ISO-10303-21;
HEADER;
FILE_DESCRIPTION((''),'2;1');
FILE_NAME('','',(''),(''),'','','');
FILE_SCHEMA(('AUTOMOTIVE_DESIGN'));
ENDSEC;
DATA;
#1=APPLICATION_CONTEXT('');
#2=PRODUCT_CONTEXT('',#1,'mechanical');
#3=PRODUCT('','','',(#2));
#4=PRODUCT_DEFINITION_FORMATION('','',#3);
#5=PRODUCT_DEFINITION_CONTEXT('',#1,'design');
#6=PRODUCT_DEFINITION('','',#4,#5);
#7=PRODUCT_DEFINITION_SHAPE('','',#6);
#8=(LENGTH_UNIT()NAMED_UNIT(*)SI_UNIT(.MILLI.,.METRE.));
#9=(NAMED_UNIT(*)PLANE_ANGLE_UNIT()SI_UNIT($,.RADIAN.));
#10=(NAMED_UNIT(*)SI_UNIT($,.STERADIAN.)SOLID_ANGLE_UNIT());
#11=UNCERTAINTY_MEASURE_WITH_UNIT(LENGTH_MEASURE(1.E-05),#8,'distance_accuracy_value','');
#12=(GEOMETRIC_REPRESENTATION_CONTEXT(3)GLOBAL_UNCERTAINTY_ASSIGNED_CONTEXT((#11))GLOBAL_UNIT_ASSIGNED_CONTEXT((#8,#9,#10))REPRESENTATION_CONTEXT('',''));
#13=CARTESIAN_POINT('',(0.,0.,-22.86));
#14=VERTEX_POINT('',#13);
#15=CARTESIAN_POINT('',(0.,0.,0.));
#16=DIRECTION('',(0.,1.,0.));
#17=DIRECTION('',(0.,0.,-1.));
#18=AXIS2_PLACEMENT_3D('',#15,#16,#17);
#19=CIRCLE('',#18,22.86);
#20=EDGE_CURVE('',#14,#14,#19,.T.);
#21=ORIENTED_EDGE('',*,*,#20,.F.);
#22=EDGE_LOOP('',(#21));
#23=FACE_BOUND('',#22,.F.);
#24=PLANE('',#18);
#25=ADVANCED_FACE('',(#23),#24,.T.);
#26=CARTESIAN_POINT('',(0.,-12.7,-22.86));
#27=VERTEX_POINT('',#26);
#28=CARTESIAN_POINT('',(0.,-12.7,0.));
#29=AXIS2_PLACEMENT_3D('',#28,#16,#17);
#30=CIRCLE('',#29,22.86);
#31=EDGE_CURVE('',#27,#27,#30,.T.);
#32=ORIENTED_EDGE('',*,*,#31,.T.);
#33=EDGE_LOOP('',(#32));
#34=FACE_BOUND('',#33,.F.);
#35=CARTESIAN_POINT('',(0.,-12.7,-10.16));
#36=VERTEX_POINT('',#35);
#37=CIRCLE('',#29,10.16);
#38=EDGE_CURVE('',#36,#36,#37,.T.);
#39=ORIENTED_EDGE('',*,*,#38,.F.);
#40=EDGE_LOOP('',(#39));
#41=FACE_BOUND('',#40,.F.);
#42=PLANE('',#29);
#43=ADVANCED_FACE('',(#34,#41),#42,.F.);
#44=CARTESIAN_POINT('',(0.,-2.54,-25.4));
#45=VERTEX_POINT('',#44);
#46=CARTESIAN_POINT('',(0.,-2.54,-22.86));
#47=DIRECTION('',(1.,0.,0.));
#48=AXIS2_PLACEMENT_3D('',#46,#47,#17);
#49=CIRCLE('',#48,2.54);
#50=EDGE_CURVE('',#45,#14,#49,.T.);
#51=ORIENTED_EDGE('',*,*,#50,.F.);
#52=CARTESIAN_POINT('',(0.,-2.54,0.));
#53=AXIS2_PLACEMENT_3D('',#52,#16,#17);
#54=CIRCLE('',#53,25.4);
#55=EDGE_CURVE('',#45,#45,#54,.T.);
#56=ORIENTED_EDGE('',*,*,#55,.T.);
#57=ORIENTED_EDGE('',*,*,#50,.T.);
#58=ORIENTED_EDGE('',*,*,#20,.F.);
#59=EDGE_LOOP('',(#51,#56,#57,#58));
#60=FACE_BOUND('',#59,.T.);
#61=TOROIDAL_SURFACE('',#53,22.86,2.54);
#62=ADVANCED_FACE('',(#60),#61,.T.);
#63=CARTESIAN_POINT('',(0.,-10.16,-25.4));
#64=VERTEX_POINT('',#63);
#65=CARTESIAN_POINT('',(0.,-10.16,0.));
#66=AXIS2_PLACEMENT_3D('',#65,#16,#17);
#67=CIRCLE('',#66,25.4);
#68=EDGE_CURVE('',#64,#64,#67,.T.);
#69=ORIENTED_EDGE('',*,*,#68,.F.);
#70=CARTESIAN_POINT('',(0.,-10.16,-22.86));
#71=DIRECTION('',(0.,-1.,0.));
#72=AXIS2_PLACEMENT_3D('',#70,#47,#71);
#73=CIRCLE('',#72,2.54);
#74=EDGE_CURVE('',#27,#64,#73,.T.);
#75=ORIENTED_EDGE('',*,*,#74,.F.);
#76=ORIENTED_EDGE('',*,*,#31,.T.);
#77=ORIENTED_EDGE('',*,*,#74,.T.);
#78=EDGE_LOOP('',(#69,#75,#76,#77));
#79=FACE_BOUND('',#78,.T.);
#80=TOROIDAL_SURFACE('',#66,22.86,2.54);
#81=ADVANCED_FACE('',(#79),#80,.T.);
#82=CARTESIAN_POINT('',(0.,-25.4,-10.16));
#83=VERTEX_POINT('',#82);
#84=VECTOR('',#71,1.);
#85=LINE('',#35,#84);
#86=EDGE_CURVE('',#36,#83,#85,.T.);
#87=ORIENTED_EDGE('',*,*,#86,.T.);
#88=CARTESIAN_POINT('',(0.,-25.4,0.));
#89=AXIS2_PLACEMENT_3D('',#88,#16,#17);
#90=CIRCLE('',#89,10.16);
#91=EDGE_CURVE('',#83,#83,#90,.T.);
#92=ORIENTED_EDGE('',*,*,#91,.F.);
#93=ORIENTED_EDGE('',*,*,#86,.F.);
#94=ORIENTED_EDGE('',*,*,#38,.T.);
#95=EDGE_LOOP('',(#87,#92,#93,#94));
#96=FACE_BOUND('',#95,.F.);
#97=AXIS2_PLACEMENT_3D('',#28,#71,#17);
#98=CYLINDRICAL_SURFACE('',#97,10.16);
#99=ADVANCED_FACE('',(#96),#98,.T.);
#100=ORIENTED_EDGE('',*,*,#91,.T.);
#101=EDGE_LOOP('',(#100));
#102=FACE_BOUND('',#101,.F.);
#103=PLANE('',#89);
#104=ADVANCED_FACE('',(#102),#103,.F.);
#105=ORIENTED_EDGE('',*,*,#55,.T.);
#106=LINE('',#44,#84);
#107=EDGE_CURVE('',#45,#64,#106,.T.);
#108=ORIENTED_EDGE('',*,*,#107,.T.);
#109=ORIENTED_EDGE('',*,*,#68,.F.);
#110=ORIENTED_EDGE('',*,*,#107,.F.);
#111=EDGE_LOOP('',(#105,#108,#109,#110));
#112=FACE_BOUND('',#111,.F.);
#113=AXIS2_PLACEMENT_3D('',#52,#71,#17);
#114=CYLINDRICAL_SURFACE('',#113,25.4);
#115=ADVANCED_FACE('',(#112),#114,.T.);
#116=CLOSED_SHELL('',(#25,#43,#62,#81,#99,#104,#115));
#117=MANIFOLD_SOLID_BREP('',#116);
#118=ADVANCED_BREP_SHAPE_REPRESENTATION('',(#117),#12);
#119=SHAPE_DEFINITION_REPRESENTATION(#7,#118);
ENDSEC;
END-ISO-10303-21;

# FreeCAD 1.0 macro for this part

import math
import FreeCAD as App
import Part
import Sketcher
from FreeCAD import Vector
Q = App.Units.Quantity

doc = App.newDocument("Part")
body = doc.addObject("PartDesign::Body", "Body")

# Sketch on YZ plane
sketch1 = body.newObject("Sketcher::SketchObject", "Sketch")
sketch1.AttachmentSupport = (doc.getObject("YZ_Plane"), [""])
sketch1.MapMode = "FlatFace"
sketch1.addGeometry([
    Part.LineSegment(Vector(0, -22.9, 0), Vector(0, 0, 0)),  # 0
    Part.LineSegment(Vector(0, 0, 0), Vector(-25.4, 0, 0)),  # 1
    Part.LineSegment(Vector(-25.4, 0, 0), Vector(-25.4, -10.2, 0)),  # 2
    Part.LineSegment(Vector(-25.4, -10.2, 0), Vector(-12.7, -10.2, 0)),  # 3
    Part.LineSegment(Vector(-12.7, -10.2, 0), Vector(-12.7, -22.9, 0)),  # 4
    Part.ArcOfCircle(Part.Circle(Vector(-10.2, -22.9, 0), Vector(0, 0, 1), 2.5), math.radians(180), math.radians(270)),  # 5
    Part.LineSegment(Vector(-10.2, -25.4, 0), Vector(-2.5, -25.4, 0)),  # 6
    Part.ArcOfCircle(Part.Circle(Vector(-2.5, -22.9, 0), Vector(0, 0, 1), 2.5), math.radians(-90), math.radians(0)),  # 7
], False)
sketch1.addConstraint([
    Sketcher.Constraint("Coincident", 0, 2, 1, 1),
    Sketcher.Constraint("Coincident", 1, 2, 2, 1),
    Sketcher.Constraint("Coincident", 2, 2, 3, 1),
    Sketcher.Constraint("Coincident", 3, 2, 4, 1),
    Sketcher.Constraint("Tangent", 4, 2, 5, 1),
    Sketcher.Constraint("Tangent", 5, 2, 6, 1),
    Sketcher.Constraint("Tangent", 6, 2, 7, 1),
    Sketcher.Constraint("Tangent", 7, 2, 0, 1),
    Sketcher.Constraint("Vertical", 0),
    Sketcher.Constraint("Horizontal", 1),
    Sketcher.Constraint("Vertical", 2),
    Sketcher.Constraint("Horizontal", 3),
    Sketcher.Constraint("Vertical", 4),
    Sketcher.Constraint("Horizontal", 6),
    Sketcher.Constraint("Coincident", 0, 2, -1, 1),
    Sketcher.Constraint("Equal", 5, 7),
    Sketcher.Constraint("Equal", 3, 4),
    Sketcher.Constraint("Radius", 5, Q("0.1 in")),
    Sketcher.Constraint("DistanceX", 1, 2, 1, 1, Q("1 in")),
    Sketcher.Constraint("DistanceX", 3, 1, 3, 2, Q("0.5 in")),
    Sketcher.Constraint("DistanceY", 2, 2, 2, 1, Q("0.4 in")),
])
revolution = body.newObject("PartDesign::Revolution", "Revolution")
revolution.Profile = sketch1
revolution.ReferenceAxis = (sketch1, ["H_Axis"])
revolution.Angle = 360

doc.recompute()
